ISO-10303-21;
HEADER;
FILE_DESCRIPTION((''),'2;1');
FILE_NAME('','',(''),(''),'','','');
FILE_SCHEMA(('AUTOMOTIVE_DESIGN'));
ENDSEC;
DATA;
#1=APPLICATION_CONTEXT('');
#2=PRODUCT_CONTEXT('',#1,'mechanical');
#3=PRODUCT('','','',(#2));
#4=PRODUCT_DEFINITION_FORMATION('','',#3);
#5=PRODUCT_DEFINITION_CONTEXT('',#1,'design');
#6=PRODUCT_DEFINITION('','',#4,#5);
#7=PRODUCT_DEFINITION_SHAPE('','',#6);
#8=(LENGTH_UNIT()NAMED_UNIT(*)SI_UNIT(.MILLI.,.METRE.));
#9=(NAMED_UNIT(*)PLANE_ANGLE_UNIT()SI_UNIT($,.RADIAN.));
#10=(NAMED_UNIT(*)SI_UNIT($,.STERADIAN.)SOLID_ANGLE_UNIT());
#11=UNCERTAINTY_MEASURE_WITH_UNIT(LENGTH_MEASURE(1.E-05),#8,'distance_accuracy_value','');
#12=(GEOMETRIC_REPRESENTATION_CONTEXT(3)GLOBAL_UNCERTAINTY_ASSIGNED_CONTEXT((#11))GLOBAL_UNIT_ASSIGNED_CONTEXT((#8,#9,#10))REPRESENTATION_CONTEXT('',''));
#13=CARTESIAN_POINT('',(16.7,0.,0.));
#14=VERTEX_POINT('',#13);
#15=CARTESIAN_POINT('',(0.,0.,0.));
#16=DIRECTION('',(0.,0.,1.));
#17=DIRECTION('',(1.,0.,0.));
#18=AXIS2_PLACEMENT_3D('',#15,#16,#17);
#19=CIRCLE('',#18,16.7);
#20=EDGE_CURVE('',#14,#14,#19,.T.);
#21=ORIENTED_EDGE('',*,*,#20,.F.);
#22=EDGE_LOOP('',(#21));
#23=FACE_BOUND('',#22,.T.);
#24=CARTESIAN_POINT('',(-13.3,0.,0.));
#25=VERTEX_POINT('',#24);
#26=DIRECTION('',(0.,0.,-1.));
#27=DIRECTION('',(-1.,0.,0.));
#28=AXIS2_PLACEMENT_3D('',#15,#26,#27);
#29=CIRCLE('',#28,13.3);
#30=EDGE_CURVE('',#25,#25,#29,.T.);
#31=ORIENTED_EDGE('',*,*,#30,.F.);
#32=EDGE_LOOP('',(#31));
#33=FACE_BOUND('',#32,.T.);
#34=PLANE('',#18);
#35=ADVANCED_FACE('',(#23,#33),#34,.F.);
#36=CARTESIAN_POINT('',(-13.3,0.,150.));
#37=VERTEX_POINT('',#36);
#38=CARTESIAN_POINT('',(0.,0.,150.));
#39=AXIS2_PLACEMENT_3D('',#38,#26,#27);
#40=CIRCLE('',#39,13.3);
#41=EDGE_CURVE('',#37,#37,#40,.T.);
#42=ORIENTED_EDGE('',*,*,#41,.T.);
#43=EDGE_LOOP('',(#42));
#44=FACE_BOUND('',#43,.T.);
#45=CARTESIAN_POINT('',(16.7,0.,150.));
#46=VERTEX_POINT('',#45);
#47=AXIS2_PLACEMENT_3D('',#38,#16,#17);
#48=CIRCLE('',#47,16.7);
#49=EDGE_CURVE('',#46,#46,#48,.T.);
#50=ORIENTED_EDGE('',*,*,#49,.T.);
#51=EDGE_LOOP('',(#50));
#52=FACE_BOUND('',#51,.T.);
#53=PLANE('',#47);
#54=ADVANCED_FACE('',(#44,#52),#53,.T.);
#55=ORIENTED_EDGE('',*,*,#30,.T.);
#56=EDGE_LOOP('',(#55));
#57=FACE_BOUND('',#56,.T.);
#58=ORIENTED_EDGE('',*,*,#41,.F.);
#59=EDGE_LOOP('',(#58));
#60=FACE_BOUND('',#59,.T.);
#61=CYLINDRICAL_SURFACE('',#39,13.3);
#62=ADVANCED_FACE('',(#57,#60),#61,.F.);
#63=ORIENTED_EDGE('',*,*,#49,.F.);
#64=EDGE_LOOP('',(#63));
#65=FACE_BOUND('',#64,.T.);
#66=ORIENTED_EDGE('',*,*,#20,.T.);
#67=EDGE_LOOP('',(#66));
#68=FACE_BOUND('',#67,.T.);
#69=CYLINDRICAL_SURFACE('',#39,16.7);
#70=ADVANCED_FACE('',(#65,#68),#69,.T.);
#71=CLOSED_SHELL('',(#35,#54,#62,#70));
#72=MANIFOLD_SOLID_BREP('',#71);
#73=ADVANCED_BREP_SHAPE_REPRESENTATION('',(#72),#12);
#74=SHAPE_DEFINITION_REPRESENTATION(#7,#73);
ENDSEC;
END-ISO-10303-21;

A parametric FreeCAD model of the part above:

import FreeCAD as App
import Part
import Sketcher

V = App.Vector

doc = App.newDocument("Part")
params = doc.addObject("Spreadsheet::Sheet", "Params")
for row, (alias, value) in enumerate([
    ("sketch1_diameter", "33.4 mm"),
    ("pad1_length", "150 mm"),
    ("sketch2_diameter", "26.6 mm"),
    ("pocket1_length", "150 mm"),
], start=1):
    params.set(f"A{row}", alias)
    params.set(f"B{row}", "=" + value)
    params.setAlias(f"B{row}", alias)

body = doc.addObject("PartDesign::Body", "Body")

# Sketch on XY plane
sketch1 = body.newObject("Sketcher::SketchObject", "Sketch")
sketch1.AttachmentSupport = (doc.getObject("XY_Plane"), [""])
sketch1.MapMode = "FlatFace"
sketch1.addGeometry(Part.Circle(V(0, 0, 0), V(0, 0, 1), 17), False)
sketch1.addConstraint([
    Sketcher.Constraint("Coincident", 0, 3, -1, 1),
    Sketcher.Constraint("Diameter", 0, 33.4),
])
sketch1.setExpression("Constraints[1]", "Params.sketch1_diameter")
pad1 = body.newObject("PartDesign::Pad", "Pad")
pad1.Profile = sketch1
pad1.setExpression("Length", "Params.pad1_length")

# Sketch on XY plane
sketch2 = body.newObject("Sketcher::SketchObject", "Sketch001")
sketch2.AttachmentSupport = (doc.getObject("XY_Plane"), [""])
sketch2.MapMode = "FlatFace"
sketch2.addGeometry(Part.Circle(V(0, 0, 0), V(0, 0, 1), 13), False)
sketch2.addConstraint([
    Sketcher.Constraint("Coincident", 0, 3, -1, 1),
    Sketcher.Constraint("Diameter", 0, 26.6),
])
sketch2.setExpression("Constraints[1]", "Params.sketch2_diameter")
pocket1 = body.newObject("PartDesign::Pocket", "Pocket")
pocket1.Profile = sketch2
pocket1.setExpression("Length", "Params.pocket1_length")
pocket1.Reversed = True

doc.recompute()
